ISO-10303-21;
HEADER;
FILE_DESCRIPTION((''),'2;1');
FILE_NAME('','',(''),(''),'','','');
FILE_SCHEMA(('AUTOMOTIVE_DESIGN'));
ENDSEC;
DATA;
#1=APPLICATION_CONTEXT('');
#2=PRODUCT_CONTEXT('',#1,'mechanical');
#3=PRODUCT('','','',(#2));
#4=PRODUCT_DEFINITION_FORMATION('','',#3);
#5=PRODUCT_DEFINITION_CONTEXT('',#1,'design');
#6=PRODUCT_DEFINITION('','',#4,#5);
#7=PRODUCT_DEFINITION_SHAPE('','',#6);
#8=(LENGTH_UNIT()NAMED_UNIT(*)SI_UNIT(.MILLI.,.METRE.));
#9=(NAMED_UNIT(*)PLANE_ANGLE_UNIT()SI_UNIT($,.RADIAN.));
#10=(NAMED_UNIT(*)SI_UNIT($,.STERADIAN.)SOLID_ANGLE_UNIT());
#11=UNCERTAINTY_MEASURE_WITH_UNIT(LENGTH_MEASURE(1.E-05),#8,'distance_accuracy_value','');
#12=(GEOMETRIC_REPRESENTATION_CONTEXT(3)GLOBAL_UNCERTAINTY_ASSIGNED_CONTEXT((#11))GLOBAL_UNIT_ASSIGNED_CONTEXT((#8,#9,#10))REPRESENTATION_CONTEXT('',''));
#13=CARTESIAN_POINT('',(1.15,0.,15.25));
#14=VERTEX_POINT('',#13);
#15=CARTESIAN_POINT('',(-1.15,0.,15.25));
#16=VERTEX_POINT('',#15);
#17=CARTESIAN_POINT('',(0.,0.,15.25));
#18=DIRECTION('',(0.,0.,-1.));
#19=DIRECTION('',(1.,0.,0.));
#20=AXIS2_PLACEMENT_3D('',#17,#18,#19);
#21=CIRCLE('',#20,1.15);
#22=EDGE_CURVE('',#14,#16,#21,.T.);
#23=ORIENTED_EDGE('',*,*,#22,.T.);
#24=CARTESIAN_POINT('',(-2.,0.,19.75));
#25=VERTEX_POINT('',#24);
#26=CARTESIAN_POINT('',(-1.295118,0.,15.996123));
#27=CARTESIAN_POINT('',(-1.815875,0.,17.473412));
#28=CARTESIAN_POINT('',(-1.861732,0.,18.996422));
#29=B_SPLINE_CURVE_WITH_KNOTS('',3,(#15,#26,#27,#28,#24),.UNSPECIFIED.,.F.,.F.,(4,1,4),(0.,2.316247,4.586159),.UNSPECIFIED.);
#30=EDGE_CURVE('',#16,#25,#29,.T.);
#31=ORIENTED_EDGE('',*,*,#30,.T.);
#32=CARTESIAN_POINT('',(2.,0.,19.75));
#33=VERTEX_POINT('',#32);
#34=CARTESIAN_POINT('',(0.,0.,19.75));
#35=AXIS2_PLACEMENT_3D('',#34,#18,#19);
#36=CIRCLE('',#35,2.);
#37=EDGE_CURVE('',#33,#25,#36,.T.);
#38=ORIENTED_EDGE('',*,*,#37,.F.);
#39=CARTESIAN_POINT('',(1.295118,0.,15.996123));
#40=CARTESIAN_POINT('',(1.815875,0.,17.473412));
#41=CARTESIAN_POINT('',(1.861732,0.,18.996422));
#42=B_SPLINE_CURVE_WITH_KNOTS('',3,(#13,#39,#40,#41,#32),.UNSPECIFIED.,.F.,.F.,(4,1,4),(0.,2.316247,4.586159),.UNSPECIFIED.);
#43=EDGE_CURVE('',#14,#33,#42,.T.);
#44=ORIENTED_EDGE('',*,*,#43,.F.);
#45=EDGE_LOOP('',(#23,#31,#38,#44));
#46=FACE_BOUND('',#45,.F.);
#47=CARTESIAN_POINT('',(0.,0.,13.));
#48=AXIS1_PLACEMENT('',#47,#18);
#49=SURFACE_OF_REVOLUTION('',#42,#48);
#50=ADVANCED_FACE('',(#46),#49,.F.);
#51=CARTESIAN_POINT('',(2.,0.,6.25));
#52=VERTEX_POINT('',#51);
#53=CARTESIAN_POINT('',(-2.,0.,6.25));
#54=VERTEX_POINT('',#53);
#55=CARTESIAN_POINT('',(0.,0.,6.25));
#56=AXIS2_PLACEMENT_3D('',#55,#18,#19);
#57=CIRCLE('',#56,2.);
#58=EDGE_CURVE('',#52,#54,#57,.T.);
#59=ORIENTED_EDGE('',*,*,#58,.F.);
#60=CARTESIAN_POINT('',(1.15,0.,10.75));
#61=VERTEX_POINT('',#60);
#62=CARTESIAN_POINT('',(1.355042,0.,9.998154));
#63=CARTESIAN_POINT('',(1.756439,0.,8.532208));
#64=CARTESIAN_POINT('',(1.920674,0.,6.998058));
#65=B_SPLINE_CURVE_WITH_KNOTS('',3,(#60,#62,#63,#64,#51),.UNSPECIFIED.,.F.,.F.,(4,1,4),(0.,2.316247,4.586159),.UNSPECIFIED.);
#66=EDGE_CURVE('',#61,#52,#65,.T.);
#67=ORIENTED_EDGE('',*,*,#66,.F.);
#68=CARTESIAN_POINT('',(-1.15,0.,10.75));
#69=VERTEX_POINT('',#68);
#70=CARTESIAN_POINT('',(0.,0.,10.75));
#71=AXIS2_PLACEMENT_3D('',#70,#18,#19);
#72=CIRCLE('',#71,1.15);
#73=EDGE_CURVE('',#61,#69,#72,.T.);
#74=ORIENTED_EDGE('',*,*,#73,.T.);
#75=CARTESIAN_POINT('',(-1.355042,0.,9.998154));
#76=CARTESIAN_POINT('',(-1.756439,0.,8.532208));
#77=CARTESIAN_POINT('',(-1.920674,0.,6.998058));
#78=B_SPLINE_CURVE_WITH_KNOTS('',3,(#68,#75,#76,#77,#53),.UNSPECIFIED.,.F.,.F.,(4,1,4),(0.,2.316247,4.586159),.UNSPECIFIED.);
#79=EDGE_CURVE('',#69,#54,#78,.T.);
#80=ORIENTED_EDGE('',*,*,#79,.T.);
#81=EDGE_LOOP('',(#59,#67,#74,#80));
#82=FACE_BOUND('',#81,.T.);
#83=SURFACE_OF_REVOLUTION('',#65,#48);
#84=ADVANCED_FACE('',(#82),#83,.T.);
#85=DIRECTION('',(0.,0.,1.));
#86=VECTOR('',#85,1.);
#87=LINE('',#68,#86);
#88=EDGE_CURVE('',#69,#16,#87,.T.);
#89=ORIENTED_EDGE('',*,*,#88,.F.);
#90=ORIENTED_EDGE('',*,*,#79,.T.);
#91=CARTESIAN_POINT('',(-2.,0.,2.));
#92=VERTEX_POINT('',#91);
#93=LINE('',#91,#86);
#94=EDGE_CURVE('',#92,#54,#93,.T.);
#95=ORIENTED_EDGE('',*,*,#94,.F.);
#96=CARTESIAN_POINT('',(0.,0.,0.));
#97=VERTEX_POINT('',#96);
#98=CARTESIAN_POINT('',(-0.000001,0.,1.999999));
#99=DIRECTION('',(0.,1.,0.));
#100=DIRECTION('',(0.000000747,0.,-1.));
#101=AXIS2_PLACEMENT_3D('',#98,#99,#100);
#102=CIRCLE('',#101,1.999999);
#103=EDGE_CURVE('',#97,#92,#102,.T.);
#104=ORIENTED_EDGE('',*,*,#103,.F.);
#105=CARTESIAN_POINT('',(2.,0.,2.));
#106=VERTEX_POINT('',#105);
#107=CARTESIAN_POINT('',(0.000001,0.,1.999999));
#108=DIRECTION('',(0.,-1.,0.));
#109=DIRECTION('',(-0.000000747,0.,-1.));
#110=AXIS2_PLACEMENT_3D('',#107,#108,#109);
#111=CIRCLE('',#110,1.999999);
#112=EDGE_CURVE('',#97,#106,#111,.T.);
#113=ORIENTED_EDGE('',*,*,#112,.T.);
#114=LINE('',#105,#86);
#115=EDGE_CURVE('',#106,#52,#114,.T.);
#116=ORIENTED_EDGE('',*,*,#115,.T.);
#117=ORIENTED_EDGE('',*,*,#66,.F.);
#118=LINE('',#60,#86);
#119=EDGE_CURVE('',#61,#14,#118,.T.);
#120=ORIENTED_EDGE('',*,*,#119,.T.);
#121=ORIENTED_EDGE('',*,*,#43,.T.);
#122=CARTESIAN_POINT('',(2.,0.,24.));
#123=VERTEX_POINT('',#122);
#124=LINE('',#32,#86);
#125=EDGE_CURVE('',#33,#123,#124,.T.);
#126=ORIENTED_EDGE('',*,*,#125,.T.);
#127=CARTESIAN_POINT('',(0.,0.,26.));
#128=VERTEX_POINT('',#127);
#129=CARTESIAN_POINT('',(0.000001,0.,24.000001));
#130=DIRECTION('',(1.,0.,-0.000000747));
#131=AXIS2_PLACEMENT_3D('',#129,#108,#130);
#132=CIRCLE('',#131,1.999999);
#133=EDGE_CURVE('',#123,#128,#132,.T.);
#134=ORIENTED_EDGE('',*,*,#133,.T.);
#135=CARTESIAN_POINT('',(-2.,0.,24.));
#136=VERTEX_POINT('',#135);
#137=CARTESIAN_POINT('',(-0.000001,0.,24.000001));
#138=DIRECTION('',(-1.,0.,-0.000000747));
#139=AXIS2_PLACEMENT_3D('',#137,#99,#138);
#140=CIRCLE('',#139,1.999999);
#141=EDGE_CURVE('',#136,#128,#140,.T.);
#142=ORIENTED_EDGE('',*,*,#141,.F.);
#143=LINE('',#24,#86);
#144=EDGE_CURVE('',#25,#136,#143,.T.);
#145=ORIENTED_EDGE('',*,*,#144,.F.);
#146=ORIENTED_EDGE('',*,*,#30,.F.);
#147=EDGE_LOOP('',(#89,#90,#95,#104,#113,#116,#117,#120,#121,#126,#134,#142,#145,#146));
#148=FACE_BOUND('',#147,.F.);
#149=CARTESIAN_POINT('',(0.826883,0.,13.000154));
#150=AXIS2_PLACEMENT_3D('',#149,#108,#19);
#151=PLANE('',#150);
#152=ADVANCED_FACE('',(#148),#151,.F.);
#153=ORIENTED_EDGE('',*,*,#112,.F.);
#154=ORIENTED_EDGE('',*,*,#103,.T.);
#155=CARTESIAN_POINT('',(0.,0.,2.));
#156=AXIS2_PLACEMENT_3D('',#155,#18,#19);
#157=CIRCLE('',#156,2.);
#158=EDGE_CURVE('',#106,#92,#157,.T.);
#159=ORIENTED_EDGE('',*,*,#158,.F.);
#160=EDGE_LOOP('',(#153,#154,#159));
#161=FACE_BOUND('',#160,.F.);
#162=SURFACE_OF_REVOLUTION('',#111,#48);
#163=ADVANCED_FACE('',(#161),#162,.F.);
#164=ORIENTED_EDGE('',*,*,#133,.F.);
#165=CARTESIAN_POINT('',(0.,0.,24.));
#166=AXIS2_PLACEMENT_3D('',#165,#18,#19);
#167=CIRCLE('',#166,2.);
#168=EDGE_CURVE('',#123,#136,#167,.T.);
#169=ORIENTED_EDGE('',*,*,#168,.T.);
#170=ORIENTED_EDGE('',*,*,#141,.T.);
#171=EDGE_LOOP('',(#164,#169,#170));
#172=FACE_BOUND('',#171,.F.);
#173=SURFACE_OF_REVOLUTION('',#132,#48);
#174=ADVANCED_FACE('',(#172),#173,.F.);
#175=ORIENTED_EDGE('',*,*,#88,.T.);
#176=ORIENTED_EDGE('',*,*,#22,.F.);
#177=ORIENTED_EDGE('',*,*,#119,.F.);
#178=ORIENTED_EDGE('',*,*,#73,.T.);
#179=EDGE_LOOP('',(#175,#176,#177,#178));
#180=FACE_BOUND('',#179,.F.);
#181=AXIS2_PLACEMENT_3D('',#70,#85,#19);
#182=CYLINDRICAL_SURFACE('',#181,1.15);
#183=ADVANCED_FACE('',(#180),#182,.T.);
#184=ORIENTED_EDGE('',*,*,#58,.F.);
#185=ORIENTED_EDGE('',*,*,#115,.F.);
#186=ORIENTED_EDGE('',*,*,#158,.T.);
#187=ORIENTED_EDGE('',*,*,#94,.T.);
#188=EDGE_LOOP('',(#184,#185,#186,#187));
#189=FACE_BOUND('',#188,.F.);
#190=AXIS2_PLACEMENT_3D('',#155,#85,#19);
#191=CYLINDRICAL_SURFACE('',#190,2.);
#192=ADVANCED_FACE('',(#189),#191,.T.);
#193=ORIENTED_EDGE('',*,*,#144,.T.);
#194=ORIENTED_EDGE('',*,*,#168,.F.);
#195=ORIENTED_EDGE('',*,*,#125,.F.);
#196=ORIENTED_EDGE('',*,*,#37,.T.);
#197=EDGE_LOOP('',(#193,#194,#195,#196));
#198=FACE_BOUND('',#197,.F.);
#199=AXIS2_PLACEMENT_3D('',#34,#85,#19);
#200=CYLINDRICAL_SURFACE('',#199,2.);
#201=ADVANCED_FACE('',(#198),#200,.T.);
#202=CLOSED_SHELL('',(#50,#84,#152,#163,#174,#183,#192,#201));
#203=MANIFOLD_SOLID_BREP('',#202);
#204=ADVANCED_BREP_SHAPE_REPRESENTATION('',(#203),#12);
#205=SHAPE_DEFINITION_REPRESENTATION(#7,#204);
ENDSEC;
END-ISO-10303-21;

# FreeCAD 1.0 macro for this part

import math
import FreeCAD as App
import Part
import Sketcher

doc = App.newDocument("Part")
body = doc.addObject("PartDesign::Body", "Body")

# Sketch on XZ plane
sketch1 = doc.addObject("Sketcher::SketchObject", "Sketch")
body.addObject(sketch1)
sketch1.AttachmentSupport = (doc.XZ_Plane, [""])
sketch1.MapMode = "FlatFace"
sketch1.addGeometry(Part.ArcOfCircle(Part.Circle(App.Vector(0.000001, 1.999999, 0), App.Vector(0, 0, 1), 1.999999), math.radians(-90.000043), math.radians(0.000043)), False)
sketch1.addGeometry(Part.LineSegment(App.Vector(2, 2, 0), App.Vector(2, 6.25, 0)), False)
sketch1.addGeometry(Part.BSplineCurve([App.Vector(1.15, 10.75, 0), App.Vector(1.355042, 9.998154, 0), App.Vector(1.756439, 8.532208, 0), App.Vector(1.920674, 6.998058, 0), App.Vector(2, 6.25, 0)], [4, 1, 4], [0, 2.316247, 4.586159], False, 3, [1, 1, 1, 1, 1], False), False)
sketch1.addGeometry(Part.LineSegment(App.Vector(1.15, 10.75, 0), App.Vector(1.15, 15.25, 0)), False)
sketch1.addGeometry(Part.BSplineCurve([App.Vector(1.15, 15.25, 0), App.Vector(1.295118, 15.996123, 0), App.Vector(1.815875, 17.473412, 0), App.Vector(1.861732, 18.996422, 0), App.Vector(2, 19.75, 0)], [4, 1, 4], [0, 2.316247, 4.586159], False, 3, [1, 1, 1, 1, 1], False), False)
sketch1.addGeometry(Part.LineSegment(App.Vector(2, 19.75, 0), App.Vector(2, 24, 0)), False)
sketch1.addGeometry(Part.ArcOfCircle(Part.Circle(App.Vector(0.000001, 24.000001, 0), App.Vector(0, 0, 1), 1.999999), math.radians(-0.000043), math.radians(90.000043)), False)
sketch1.addGeometry(Part.LineSegment(App.Vector(0, 26, 0), App.Vector(0, 0, 0)), False)
sketch1.addConstraint(Sketcher.Constraint("Block", 2))
sketch1.addConstraint(Sketcher.Constraint("Block", 4))
sketch1.addConstraint(Sketcher.Constraint("Tangent", 0, 2, 1, 1))
sketch1.addConstraint(Sketcher.Constraint("Coincident", 1, 2, 2, 2))
sketch1.addConstraint(Sketcher.Constraint("Coincident", 2, 1, 3, 1))
sketch1.addConstraint(Sketcher.Constraint("Coincident", 3, 2, 4, 1))
sketch1.addConstraint(Sketcher.Constraint("Coincident", 4, 2, 5, 1))
sketch1.addConstraint(Sketcher.Constraint("Tangent", 5, 2, 6, 1))
sketch1.addConstraint(Sketcher.Constraint("Coincident", 6, 2, 7, 1))
sketch1.addConstraint(Sketcher.Constraint("Coincident", 7, 2, 0, 1))
sketch1.addConstraint(Sketcher.Constraint("Vertical", 1))
sketch1.addConstraint(Sketcher.Constraint("Vertical", 5))
sketch1.addConstraint(Sketcher.Constraint("Vertical", 7))
sketch1.addConstraint(Sketcher.Constraint("Coincident", 7, 2, -1, 1))
sketch1.addConstraint(Sketcher.Constraint("Equal", 0, 6))
sketch1.addConstraint(Sketcher.Constraint("PointOnObject", 0, 3, -2))
sketch1.addConstraint(Sketcher.Constraint("Equal", 1, 5))
revolution = doc.addObject("PartDesign::Revolution", "Revolution")
body.addObject(revolution)
revolution.Profile = sketch1
revolution.ReferenceAxis = (sketch1, ["V_Axis"])
revolution.Angle = 180
revolution.Reversed = True

doc.recompute()
